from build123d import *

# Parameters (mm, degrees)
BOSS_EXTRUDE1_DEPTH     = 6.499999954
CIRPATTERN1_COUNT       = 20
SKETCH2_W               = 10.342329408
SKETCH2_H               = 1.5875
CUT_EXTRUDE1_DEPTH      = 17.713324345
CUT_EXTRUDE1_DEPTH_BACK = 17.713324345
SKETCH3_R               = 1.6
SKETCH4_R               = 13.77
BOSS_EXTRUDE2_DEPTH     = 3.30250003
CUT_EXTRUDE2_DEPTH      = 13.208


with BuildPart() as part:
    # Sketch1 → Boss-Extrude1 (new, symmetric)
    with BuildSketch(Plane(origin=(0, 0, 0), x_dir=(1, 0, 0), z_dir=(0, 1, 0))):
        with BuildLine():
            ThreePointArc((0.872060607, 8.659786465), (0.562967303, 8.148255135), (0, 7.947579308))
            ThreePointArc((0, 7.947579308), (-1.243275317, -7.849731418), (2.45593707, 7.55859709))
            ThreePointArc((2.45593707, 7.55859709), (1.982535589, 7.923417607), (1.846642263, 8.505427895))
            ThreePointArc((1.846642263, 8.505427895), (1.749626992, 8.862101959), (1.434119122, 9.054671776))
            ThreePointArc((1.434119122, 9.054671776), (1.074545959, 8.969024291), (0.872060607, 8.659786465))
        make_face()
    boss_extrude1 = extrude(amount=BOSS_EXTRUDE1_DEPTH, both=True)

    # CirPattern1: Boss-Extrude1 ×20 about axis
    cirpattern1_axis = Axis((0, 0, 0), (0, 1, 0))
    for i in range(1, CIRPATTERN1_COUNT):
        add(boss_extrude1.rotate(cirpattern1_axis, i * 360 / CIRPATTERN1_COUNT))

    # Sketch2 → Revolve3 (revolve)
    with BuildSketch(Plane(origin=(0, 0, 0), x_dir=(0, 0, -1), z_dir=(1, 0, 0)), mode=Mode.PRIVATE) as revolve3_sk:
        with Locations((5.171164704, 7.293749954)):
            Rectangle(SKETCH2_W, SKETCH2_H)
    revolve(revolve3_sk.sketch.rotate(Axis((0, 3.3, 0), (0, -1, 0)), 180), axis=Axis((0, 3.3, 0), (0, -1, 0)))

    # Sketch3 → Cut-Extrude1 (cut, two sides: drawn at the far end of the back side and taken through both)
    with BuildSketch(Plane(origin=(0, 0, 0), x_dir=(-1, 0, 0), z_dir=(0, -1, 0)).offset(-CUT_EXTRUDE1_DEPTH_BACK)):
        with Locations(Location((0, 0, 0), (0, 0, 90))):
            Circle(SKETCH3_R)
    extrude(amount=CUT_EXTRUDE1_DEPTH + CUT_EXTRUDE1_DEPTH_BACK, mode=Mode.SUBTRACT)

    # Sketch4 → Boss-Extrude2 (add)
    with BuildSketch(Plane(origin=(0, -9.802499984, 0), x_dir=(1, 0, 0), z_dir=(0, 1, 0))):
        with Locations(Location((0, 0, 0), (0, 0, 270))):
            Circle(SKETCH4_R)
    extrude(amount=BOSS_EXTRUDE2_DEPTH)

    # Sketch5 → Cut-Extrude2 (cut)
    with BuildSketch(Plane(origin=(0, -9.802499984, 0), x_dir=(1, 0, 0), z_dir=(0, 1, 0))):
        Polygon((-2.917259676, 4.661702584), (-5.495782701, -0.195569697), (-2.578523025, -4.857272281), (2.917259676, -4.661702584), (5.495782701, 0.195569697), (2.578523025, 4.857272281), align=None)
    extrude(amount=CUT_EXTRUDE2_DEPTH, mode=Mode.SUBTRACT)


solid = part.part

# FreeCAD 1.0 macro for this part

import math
import FreeCAD as App
import Part
import Sketcher


def add_polygon(sketch, points):
    """Adds a closed chain of lines whose ends are joined by coincident constraints."""
    first, n = sketch.GeometryCount, len(points)
    for a, b in zip(points, points[1:] + points[:1]):
        sketch.addGeometry(Part.LineSegment(App.Vector(*a, 0), App.Vector(*b, 0)), False)
    for i in range(n):
        sketch.addConstraint(Sketcher.Constraint("Coincident", first + i, 2, first + (i + 1) % n, 1))

doc = App.newDocument("Part")
body = doc.addObject("PartDesign::Body", "Body")

# Sketch on XZ plane
sketch1 = body.newObject("Sketcher::SketchObject", "Sketch")
sketch1.AttachmentSupport = (doc.getObject("XZ_Plane"), [""])
sketch1.MapMode = "FlatFace"
sketch1.addGeometry([
    Part.ArcOfCircle(Part.Circle(App.Vector(0, -8.837579, 0), App.Vector(0, 0, 1), 0.89), math.radians(11.523348), math.radians(90)),  # 0
    Part.ArcOfCircle(Part.Circle(App.Vector(0, 0, 0), App.Vector(0, 0, 1), 7.947579), math.radians(-72), math.radians(270)),  # 1
    Part.ArcOfCircle(Part.Circle(App.Vector(2.730962, -8.405037, 0), App.Vector(0, 0, 1), 0.89), math.radians(108), math.radians(186.476652)),  # 2
    Part.ArcOfCircle(Part.Circle(App.Vector(1.349833, -8.561827, 0), App.Vector(0, 0, 1), 0.5), math.radians(-80.295218), math.radians(6.476652)),  # 3
    Part.ArcOfCircle(Part.Circle(App.Vector(1.361982, -8.559903, 0), App.Vector(0, 0, 1), 0.5), math.radians(-168.476652), math.radians(-81.704782)),  # 4
], False)
sketch1.addConstraint([
    Sketcher.Constraint("Tangent", 0, 2, 1, 2),
    Sketcher.Constraint("Tangent", 1, 1, 2, 1),
    Sketcher.Constraint("Tangent", 2, 2, 3, 2),
    Sketcher.Constraint("Coincident", 3, 1, 4, 2),
    Sketcher.Constraint("Tangent", 4, 1, 0, 1),
    Sketcher.Constraint("Coincident", 1, 3, -1, 1),
    Sketcher.Constraint("Equal", 0, 2),
    Sketcher.Constraint("Equal", 3, 4),
    Sketcher.Constraint("PointOnObject", 0, 3, -2),
    Sketcher.Constraint("Radius", 3, 0.5),
    Sketcher.Constraint("Radius", 0, 0.89),
    Sketcher.Constraint("Radius", 1, 7.947579),
    Sketcher.Constraint("DistanceY", 3, 3, 2, 2, 0.056399),
    Sketcher.Constraint("DistanceX", -1, 1, 3, 1, 1.434119),
    Sketcher.Constraint("DistanceY", 3, 1, -1, 1, 9.054672),
])
pad1 = body.newObject("PartDesign::Pad", "Pad")
pad1.Profile = sketch1
pad1.Length = 13
pad1.Midplane = True
doc.recompute()

polarpattern = body.newObject("PartDesign::PolarPattern", "PolarPattern")
polarpattern.Originals = [pad1]
polarpattern.Axis = (doc.getObject("Y_Axis"), [""])
polarpattern.Angle = 360
polarpattern.Occurrences = 20
body.Tip = polarpattern

# Sketch on YZ plane
sketch2 = body.newObject("Sketcher::SketchObject", "Sketch001")
sketch2.AttachmentSupport = (doc.getObject("YZ_Plane"), [""])
sketch2.MapMode = "FlatFace"
add_polygon(sketch2, [(8.0875, 0), (6.5, 0), (6.5, -10.342329), (8.0875, -10.342329)])  # lines 0-3
sketch2.addConstraint([
    Sketcher.Constraint("Horizontal", 0),
    Sketcher.Constraint("Vertical", 1),
    Sketcher.Constraint("Horizontal", 2),
    Sketcher.Constraint("Vertical", 3),
    Sketcher.Constraint("PointOnObject", 0, 2, -1),
    Sketcher.Constraint("DistanceX", -1, 1, 0, 2, 6.5),
    Sketcher.Constraint("DistanceX", 0, 2, 0, 1, 1.5875),
    Sketcher.Constraint("DistanceY", 1, 2, 1, 1, 10.342329),
])
revolution = body.newObject("PartDesign::Revolution", "Revolution")
revolution.Profile = sketch2
revolution.ReferenceAxis = (sketch2, ["H_Axis"])
revolution.Angle = 360

# Sketch on XZ plane
sketch3 = body.newObject("Sketcher::SketchObject", "Sketch002")
sketch3.AttachmentSupport = (doc.getObject("XZ_Plane"), [""])
sketch3.MapMode = "FlatFace"
sketch3.addGeometry(Part.Circle(App.Vector(0, 0, 0), App.Vector(0, 0, 1), 1.6), False)
sketch3.addConstraint([
    Sketcher.Constraint("Coincident", 0, 3, -1, 1),
    Sketcher.Constraint("Diameter", 0, 3.2),
])
pocket1 = body.newObject("PartDesign::Pocket", "Pocket")
pocket1.Profile = sketch3
pocket1.Type = "ThroughAll"
pocket1.Midplane = True

# Sketch on XZ plane
sketch4 = body.newObject("Sketcher::SketchObject", "Sketch003")
sketch4.AttachmentSupport = (doc.getObject("XZ_Plane"), [""])
sketch4.MapMode = "FlatFace"
sketch4.AttachmentOffset = App.Placement(App.Vector(0, 0, 9.8025), App.Rotation())
sketch4.addGeometry(Part.Circle(App.Vector(0, 0, 0), App.Vector(0, 0, 1), 13.77), False)
sketch4.addConstraint([
    Sketcher.Constraint("Coincident", 0, 3, -1, 1),
    Sketcher.Constraint("Diameter", 0, 27.54),
])
pad2 = body.newObject("PartDesign::Pad", "Pad001")
pad2.Profile = sketch4
pad2.Length = 3.3025
pad2.Reversed = True

# Sketch on XZ plane
sketch5 = body.newObject("Sketcher::SketchObject", "Sketch004")
sketch5.AttachmentSupport = (doc.getObject("XZ_Plane"), [""])
sketch5.MapMode = "FlatFace"
sketch5.AttachmentOffset = App.Placement(App.Vector(0, 0, 9.8025), App.Rotation())
add_polygon(sketch5, [(-2.91726, -4.661703), (-5.495783, 0.19557), (-2.578523, 4.857272), (2.91726, 4.661703), (5.495783, -0.19557), (2.578523, -4.857272)])  # lines 0-5
sketch5.addConstraint([
    Sketcher.Constraint("Symmetric", 0, 2, 3, 2, -1, 1),
    Sketcher.Constraint("Symmetric", 1, 2, 4, 2, -1, 1),
    Sketcher.Constraint("Symmetric", 2, 2, 5, 2, -1, 1),
    Sketcher.Constraint("Equal", 0, 1),
    Sketcher.Constraint("Equal", 1, 2),
    Sketcher.Constraint("Distance", 0, 5.499261),
    Sketcher.Constraint("DistanceY", -1, 1, 0, 2, 0.19557),
    Sketcher.Constraint("DistanceX", -1, 1, 2, 2, 2.91726),
    Sketcher.Constraint("DistanceX", 0, 2, 1, 2, 2.91726),
])
pocket2 = body.newObject("PartDesign::Pocket", "Pocket001")
pocket2.Profile = sketch5
pocket2.Length = 13.208

doc.recompute()
